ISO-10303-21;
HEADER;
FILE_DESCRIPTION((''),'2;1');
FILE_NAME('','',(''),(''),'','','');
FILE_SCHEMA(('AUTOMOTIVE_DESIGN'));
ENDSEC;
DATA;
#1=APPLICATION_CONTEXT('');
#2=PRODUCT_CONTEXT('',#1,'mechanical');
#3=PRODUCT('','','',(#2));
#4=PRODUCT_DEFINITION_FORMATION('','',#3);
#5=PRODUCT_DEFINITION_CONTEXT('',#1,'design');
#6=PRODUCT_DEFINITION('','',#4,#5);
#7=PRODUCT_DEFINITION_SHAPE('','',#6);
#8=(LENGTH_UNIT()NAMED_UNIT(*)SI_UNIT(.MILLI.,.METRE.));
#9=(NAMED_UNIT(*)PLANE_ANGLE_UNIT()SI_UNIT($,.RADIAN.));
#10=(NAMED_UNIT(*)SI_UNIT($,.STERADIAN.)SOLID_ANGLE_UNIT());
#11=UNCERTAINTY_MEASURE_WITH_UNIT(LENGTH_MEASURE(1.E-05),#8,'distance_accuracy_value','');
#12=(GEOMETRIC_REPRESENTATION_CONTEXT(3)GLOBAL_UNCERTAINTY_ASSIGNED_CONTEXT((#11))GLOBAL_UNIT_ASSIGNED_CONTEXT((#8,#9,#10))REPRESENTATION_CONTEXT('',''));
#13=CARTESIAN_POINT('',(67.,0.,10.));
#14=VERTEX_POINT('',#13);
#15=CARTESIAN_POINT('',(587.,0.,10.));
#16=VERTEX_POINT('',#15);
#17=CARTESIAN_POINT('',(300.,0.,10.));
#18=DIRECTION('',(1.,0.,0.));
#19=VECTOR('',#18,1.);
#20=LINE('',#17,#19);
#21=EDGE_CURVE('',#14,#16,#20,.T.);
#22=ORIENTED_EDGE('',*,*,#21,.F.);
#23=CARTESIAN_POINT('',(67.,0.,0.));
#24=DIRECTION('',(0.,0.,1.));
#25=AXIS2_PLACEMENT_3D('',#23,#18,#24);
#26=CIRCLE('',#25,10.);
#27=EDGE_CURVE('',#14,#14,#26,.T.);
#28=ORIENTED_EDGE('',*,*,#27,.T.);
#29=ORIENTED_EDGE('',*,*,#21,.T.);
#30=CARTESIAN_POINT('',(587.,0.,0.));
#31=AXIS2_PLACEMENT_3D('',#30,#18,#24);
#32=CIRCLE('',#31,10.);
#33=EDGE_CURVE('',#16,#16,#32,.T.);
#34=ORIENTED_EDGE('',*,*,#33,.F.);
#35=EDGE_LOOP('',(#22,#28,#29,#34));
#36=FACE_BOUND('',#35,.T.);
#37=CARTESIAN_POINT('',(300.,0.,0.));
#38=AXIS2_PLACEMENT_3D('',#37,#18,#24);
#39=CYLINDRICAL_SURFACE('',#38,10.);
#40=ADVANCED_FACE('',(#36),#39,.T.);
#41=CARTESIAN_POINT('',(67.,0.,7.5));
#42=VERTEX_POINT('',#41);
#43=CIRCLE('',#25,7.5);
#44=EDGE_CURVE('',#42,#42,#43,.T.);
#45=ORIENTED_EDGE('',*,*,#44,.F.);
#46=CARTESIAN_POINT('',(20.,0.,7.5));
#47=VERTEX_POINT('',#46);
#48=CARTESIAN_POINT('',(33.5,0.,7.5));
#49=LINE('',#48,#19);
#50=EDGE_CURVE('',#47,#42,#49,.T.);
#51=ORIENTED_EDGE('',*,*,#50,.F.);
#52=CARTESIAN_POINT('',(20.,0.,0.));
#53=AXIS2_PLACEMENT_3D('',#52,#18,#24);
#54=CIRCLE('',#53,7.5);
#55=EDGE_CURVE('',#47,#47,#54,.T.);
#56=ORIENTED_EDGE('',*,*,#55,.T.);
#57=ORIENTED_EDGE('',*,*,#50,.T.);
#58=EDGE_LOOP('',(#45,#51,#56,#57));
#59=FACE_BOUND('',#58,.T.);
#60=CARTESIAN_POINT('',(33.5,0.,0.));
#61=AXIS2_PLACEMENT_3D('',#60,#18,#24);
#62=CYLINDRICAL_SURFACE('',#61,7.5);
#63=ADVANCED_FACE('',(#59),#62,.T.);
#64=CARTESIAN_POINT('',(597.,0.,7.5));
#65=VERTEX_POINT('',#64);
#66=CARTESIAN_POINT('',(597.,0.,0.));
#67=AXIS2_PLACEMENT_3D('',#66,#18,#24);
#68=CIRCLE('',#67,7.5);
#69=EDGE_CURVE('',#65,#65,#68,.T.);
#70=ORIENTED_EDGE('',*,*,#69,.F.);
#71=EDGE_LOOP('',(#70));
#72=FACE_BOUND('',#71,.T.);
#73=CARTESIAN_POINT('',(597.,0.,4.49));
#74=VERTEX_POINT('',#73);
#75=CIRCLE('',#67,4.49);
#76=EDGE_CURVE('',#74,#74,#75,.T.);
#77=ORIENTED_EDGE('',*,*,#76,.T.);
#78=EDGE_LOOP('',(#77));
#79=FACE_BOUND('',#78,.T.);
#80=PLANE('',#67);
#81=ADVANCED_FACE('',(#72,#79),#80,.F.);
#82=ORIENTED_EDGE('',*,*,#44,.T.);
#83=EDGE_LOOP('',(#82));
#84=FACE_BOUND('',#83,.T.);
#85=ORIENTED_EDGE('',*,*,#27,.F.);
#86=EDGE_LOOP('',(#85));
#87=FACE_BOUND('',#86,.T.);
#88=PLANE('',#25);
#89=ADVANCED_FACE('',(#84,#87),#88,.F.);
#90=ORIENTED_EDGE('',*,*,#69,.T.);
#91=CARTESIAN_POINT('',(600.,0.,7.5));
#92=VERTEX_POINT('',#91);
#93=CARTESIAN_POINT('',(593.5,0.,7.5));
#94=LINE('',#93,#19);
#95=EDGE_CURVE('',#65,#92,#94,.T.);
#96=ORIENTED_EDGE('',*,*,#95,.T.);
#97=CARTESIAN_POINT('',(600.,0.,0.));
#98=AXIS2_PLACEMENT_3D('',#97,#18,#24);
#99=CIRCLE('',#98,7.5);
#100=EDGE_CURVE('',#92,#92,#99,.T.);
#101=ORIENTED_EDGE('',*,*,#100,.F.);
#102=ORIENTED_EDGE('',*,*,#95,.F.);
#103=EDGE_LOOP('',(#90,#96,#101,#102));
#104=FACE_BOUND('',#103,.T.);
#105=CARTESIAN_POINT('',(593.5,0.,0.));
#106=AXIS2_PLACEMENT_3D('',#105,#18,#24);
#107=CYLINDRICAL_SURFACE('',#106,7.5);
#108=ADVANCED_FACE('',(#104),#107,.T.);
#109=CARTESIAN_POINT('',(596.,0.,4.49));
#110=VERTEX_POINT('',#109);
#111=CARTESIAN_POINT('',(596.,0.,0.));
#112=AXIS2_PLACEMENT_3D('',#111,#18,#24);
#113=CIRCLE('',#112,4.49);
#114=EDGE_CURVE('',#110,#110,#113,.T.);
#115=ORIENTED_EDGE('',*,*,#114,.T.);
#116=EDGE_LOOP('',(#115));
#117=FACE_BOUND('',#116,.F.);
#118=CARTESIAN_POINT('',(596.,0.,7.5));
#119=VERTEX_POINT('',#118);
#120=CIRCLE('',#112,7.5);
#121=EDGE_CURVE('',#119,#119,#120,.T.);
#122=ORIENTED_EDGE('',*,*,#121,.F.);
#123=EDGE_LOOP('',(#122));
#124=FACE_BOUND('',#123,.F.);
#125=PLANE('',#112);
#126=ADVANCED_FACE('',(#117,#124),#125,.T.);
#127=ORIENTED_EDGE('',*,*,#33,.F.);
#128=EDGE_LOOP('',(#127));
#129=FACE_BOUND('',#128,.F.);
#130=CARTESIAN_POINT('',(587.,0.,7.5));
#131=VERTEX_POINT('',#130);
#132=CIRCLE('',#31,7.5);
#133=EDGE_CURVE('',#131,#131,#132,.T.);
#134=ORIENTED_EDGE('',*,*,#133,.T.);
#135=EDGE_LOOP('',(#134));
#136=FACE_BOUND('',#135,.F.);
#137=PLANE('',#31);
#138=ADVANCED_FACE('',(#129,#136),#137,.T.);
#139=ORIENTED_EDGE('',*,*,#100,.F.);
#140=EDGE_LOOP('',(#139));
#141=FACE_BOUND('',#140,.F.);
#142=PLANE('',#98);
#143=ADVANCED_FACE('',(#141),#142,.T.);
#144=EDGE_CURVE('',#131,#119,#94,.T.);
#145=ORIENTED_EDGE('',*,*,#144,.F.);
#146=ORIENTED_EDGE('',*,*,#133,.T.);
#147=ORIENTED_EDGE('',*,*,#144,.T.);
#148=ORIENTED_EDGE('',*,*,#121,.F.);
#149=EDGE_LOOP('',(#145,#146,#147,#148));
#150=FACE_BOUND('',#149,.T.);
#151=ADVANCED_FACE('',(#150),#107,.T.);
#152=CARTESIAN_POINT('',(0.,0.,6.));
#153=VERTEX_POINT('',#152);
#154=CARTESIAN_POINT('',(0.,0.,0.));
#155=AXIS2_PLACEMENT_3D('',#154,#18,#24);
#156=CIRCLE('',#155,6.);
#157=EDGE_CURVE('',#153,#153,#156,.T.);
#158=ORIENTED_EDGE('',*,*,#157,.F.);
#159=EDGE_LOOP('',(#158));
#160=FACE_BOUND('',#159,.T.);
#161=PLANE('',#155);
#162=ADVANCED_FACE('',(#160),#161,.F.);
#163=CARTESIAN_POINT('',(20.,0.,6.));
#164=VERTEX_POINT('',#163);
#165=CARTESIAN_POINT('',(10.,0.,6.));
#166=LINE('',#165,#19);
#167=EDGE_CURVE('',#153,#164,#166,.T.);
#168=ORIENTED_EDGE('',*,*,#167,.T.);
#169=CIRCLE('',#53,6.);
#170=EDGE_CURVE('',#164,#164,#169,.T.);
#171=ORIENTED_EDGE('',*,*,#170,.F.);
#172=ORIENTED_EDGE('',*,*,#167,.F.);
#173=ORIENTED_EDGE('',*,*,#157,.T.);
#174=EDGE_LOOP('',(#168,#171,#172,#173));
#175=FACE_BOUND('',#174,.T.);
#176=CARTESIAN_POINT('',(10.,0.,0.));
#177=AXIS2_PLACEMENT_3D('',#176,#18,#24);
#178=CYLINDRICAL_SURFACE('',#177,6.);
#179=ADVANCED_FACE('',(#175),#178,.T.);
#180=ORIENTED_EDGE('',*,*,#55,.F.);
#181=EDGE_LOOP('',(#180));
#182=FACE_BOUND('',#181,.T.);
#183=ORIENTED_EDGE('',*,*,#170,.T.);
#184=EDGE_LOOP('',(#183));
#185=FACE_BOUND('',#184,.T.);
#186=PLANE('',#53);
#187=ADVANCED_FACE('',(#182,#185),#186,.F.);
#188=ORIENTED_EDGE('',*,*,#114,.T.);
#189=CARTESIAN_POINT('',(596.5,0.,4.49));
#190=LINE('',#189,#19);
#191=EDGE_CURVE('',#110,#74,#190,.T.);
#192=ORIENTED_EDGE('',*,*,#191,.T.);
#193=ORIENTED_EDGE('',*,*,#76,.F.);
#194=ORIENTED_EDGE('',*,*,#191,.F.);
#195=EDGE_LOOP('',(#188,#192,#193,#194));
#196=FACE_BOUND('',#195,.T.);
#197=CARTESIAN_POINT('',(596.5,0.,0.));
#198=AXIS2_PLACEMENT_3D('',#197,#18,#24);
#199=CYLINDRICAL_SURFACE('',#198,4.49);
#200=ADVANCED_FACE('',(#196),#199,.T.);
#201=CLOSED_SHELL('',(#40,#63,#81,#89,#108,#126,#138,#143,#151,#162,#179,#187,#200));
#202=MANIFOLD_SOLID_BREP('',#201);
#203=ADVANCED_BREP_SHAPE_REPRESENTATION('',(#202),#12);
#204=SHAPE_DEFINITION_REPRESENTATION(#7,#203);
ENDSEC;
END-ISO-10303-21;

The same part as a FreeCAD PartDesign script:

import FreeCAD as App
import Part
import Sketcher
from FreeCAD import Vector
Q = App.Units.Quantity

doc = App.newDocument("Part")
body = doc.addObject("PartDesign::Body", "Body")

sketch1 = body.newObject("Sketcher::SketchObject", "Sketch")
sketch1.AttachmentSupport = (doc.getObject("XZ_Plane"), [""])
sketch1.MapMode = "FlatFace"
sketch1.addGeometry([
    Part.LineSegment(Vector(0, 10, 0), Vector(0, 0, 0)),
    Part.LineSegment(Vector(0, 0, 0), Vector(600, 0, 0)),
    Part.LineSegment(Vector(600, 0, 0), Vector(600, 10, 0)),
    Part.LineSegment(Vector(600, 10, 0), Vector(0, 10, 0)),
], False)
sketch1.addConstraint([
    Sketcher.Constraint("Coincident", 0, 2, 1, 1),
    Sketcher.Constraint("Coincident", 1, 2, 2, 1),
    Sketcher.Constraint("Coincident", 2, 2, 3, 1),
    Sketcher.Constraint("Coincident", 3, 2, 0, 1),
    Sketcher.Constraint("Vertical", 0),
    Sketcher.Constraint("Horizontal", 1),
    Sketcher.Constraint("Vertical", 2),
    Sketcher.Constraint("Horizontal", 3),
    Sketcher.Constraint("Coincident", 0, 2, -1, 1),
    Sketcher.Constraint("DistanceX", 1, 1, 1, 2, Q("600 mm")),
    Sketcher.Constraint("DistanceY", 0, 2, 0, 1, Q("10 mm")),
])
revolution = body.newObject("PartDesign::Revolution", "Revolution")
revolution.Profile = sketch1
revolution.ReferenceAxis = (sketch1, ["H_Axis"])
revolution.Angle = 360

sketch2 = body.newObject("Sketcher::SketchObject", "Sketch001")
sketch2.AttachmentSupport = (doc.getObject("XZ_Plane"), [""])
sketch2.MapMode = "FlatFace"
sketch2.addGeometry([
    Part.LineSegment(Vector(0, 10, 0), Vector(0, 7.5, 0)),
    Part.LineSegment(Vector(0, 7.5, 0), Vector(67, 7.5, 0)),
    Part.LineSegment(Vector(67, 7.5, 0), Vector(67, 10, 0)),
    Part.LineSegment(Vector(67, 10, 0), Vector(0, 10, 0)),
], False)
sketch2.addConstraint([
    Sketcher.Constraint("Coincident", 0, 2, 1, 1),
    Sketcher.Constraint("Coincident", 1, 2, 2, 1),
    Sketcher.Constraint("Coincident", 2, 2, 3, 1),
    Sketcher.Constraint("Coincident", 3, 2, 0, 1),
    Sketcher.Constraint("Vertical", 0),
    Sketcher.Constraint("Horizontal", 1),
    Sketcher.Constraint("Vertical", 2),
    Sketcher.Constraint("Horizontal", 3),
    Sketcher.Constraint("PointOnObject", 0, 2, -2),
    Sketcher.Constraint("DistanceX", 1, 1, 1, 2, Q("67 mm")),
    Sketcher.Constraint("DistanceY", 0, 2, 0, 1, Q("2.5 mm")),
    Sketcher.Constraint("DistanceY", -1, 1, 2, 2, Q("10 mm")),
])
groove = body.newObject("PartDesign::Groove", "Groove")
groove.Profile = sketch2
groove.ReferenceAxis = (sketch2, ["H_Axis"])
groove.Angle = 360

sketch3 = body.newObject("Sketcher::SketchObject", "Sketch002")
sketch3.AttachmentSupport = (doc.getObject("XZ_Plane"), [""])
sketch3.MapMode = "FlatFace"
sketch3.addGeometry([
    Part.LineSegment(Vector(0, 7.5, 0), Vector(0, 6, 0)),
    Part.LineSegment(Vector(0, 6, 0), Vector(20, 6, 0)),
    Part.LineSegment(Vector(20, 6, 0), Vector(20, 7.5, 0)),
    Part.LineSegment(Vector(20, 7.5, 0), Vector(0, 7.5, 0)),
], False)
sketch3.addConstraint([
    Sketcher.Constraint("Coincident", 0, 2, 1, 1),
    Sketcher.Constraint("Coincident", 1, 2, 2, 1),
    Sketcher.Constraint("Coincident", 2, 2, 3, 1),
    Sketcher.Constraint("Coincident", 3, 2, 0, 1),
    Sketcher.Constraint("Vertical", 0),
    Sketcher.Constraint("Horizontal", 1),
    Sketcher.Constraint("Vertical", 2),
    Sketcher.Constraint("Horizontal", 3),
    Sketcher.Constraint("PointOnObject", 0, 2, -2),
    Sketcher.Constraint("DistanceX", 1, 1, 1, 2, Q("20 mm")),
    Sketcher.Constraint("DistanceY", 0, 2, 0, 1, Q("1.5 mm")),
    Sketcher.Constraint("DistanceY", -1, 1, 0, 2, Q("6 mm")),
])
groove2 = body.newObject("PartDesign::Groove", "Groove001")
groove2.Profile = sketch3
groove2.ReferenceAxis = (sketch3, ["H_Axis"])
groove2.Angle = 360

sketch4 = body.newObject("Sketcher::SketchObject", "Sketch003")
sketch4.AttachmentSupport = (doc.getObject("XZ_Plane"), [""])
sketch4.MapMode = "FlatFace"
sketch4.addGeometry([
    Part.LineSegment(Vector(587, 10, 0), Vector(587, 7.5, 0)),
    Part.LineSegment(Vector(587, 7.5, 0), Vector(596, 7.5, 0)),
    Part.LineSegment(Vector(596, 7.5, 0), Vector(596, 4.5, 0)),
    Part.LineSegment(Vector(596, 4.5, 0), Vector(597, 4.5, 0)),
    Part.LineSegment(Vector(597, 4.5, 0), Vector(597, 7.5, 0)),
    Part.LineSegment(Vector(597, 7.5, 0), Vector(600, 7.5, 0)),
    Part.LineSegment(Vector(600, 7.5, 0), Vector(600, 10, 0)),
    Part.LineSegment(Vector(600, 10, 0), Vector(587, 10, 0)),
], False)
sketch4.addConstraint([
    Sketcher.Constraint("Coincident", 0, 2, 1, 1),
    Sketcher.Constraint("Coincident", 1, 2, 2, 1),
    Sketcher.Constraint("Coincident", 2, 2, 3, 1),
    Sketcher.Constraint("Coincident", 3, 2, 4, 1),
    Sketcher.Constraint("Coincident", 4, 2, 5, 1),
    Sketcher.Constraint("Coincident", 5, 2, 6, 1),
    Sketcher.Constraint("Coincident", 6, 2, 7, 1),
    Sketcher.Constraint("Coincident", 7, 2, 0, 1),
    Sketcher.Constraint("Vertical", 0),
    Sketcher.Constraint("Horizontal", 1),
    Sketcher.Constraint("Vertical", 2),
    Sketcher.Constraint("Horizontal", 3),
    Sketcher.Constraint("Vertical", 4),
    Sketcher.Constraint("Horizontal", 5),
    Sketcher.Constraint("Vertical", 6),
    Sketcher.Constraint("Horizontal", 7),
    Sketcher.Constraint("Horizontal", 1, 2, 4, 2),
    Sketcher.Constraint("DistanceX", 1, 1, 1, 2, Q("9 mm")),
    Sketcher.Constraint("DistanceX", 3, 1, 3, 2, Q("1 mm")),
    Sketcher.Constraint("DistanceX", 5, 1, 5, 2, Q("3 mm")),
    Sketcher.Constraint("DistanceY", 0, 2, 0, 1, Q("2.5 mm")),
    Sketcher.Constraint("DistanceX", -1, 1, 0, 2, Q("587 mm")),
    Sketcher.Constraint("DistanceY", -1, 1, 6, 2, Q("10 mm")),
    Sketcher.Constraint("DistanceY", 2, 2, 2, 1, Q("3.01 mm")),
])
groove3 = body.newObject("PartDesign::Groove", "Groove002")
groove3.Profile = sketch4
groove3.ReferenceAxis = (sketch4, ["H_Axis"])
groove3.Angle = 360

doc.recompute()
